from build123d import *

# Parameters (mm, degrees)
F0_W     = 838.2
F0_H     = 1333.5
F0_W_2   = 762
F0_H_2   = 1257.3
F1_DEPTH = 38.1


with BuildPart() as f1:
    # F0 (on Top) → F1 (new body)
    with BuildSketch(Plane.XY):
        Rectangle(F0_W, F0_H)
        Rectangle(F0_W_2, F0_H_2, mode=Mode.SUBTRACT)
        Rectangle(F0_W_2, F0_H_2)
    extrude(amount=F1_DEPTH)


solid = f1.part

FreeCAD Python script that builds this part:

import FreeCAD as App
import Part
import Sketcher
from FreeCAD import Vector
Q = App.Units.Quantity


def add_polygon(sketch, points):
    """Adds a closed chain of lines whose ends are joined by coincident constraints."""
    first, n = sketch.GeometryCount, len(points)
    for a, b in zip(points, points[1:] + points[:1]):
        sketch.addGeometry(Part.LineSegment(App.Vector(*a, 0), App.Vector(*b, 0)), False)
    for i in range(n):
        sketch.addConstraint(Sketcher.Constraint("Coincident", first + i, 2, first + (i + 1) % n, 1))

doc = App.newDocument("Part")
body = doc.addObject("PartDesign::Body", "Body")

sketch1 = doc.addObject("Sketcher::SketchObject", "Sketch")
body.addObject(sketch1)
sketch1.AttachmentSupport = (doc.XY_Plane, [""])
sketch1.MapMode = "FlatFace"
add_polygon(sketch1, [(-419, 667), (-419, -667), (419, -667), (419, 667)])
sketch1.addConstraint([
    Sketcher.Constraint("Vertical", 0),
    Sketcher.Constraint("Horizontal", 1),
    Sketcher.Constraint("Vertical", 2),
    Sketcher.Constraint("Horizontal", 3),
    Sketcher.Constraint("Symmetric", 0, 2, 2, 2, -1, 1),
    Sketcher.Constraint("DistanceX", 1, 1, 1, 2, Q("33 in")),
    Sketcher.Constraint("DistanceY", 0, 2, 0, 1, Q("52.5 in")),
])
pad1 = doc.addObject("PartDesign::Pad", "Pad")
body.addObject(pad1)
pad1.Profile = sketch1
pad1.Length = Q("1.5 in")

doc.recompute()
